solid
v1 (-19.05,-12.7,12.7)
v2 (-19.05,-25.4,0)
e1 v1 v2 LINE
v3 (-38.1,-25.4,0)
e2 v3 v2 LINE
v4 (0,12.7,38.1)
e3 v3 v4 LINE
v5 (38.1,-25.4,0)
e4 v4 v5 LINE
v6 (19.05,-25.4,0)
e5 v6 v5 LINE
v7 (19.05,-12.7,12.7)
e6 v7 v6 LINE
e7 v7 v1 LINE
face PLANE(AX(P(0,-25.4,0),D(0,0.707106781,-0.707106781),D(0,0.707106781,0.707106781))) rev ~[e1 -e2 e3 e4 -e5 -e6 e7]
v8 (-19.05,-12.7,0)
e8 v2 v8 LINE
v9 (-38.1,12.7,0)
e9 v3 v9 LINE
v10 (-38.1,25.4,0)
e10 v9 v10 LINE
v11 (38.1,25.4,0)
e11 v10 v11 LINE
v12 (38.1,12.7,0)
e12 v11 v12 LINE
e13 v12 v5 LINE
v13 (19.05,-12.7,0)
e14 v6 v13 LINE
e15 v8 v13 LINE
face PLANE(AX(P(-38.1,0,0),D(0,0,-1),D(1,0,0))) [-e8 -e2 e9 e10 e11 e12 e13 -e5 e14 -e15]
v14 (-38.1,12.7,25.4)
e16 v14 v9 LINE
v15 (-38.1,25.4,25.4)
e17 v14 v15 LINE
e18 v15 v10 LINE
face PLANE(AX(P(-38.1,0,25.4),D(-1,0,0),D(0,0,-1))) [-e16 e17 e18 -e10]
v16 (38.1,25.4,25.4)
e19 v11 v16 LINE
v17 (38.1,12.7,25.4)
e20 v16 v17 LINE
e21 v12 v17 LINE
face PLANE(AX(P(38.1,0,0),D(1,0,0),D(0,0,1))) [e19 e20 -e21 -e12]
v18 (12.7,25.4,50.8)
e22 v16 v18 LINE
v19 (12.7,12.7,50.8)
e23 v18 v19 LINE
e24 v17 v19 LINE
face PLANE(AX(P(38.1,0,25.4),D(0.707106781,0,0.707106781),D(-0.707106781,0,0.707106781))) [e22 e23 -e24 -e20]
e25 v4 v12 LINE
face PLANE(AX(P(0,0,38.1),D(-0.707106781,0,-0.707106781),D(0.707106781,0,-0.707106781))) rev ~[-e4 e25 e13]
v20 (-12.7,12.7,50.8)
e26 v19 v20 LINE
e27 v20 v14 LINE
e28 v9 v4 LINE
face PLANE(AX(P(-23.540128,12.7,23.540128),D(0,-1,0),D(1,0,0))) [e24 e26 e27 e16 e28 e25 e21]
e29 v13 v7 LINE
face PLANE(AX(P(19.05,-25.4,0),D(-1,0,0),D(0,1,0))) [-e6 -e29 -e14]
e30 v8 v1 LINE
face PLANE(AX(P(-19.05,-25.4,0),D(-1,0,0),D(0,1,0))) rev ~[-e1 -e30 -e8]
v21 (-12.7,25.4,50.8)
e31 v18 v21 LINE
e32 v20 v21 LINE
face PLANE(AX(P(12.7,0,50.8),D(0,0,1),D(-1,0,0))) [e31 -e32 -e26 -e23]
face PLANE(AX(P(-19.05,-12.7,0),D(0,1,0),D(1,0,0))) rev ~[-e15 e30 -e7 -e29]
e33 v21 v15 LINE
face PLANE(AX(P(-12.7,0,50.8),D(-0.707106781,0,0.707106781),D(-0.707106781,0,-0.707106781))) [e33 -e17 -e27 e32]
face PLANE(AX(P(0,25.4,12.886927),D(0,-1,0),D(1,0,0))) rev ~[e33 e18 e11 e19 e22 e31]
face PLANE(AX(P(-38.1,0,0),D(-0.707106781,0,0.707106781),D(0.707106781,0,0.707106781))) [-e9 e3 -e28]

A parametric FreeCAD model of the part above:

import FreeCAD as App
import Part
import Sketcher
from FreeCAD import Vector
Q = App.Units.Quantity

doc = App.newDocument("Part")
body = doc.addObject("PartDesign::Body", "Body")

sketch1 = body.newObject("Sketcher::SketchObject", "Sketch")
sketch1.AttachmentSupport = (doc.getObject("XZ_Plane"), [""])
sketch1.MapMode = "FlatFace"
sketch1.addGeometry([
    Part.LineSegment(Vector(-38.1, 0, 0), Vector(38.1, 0, 0)),
    Part.LineSegment(Vector(38.1, 0, 0), Vector(38.1, 25.4, 0)),
    Part.LineSegment(Vector(38.1, 25.4, 0), Vector(12.7, 50.8, 0)),
    Part.LineSegment(Vector(12.7, 50.8, 0), Vector(-12.7, 50.8, 0)),
    Part.LineSegment(Vector(-12.7, 50.8, 0), Vector(-38.1, 25.4, 0)),
    Part.LineSegment(Vector(-38.1, 25.4, 0), Vector(-38.1, 0, 0)),
], False)
sketch1.addConstraint([
    Sketcher.Constraint("Coincident", 0, 2, 1, 1),
    Sketcher.Constraint("Coincident", 1, 2, 2, 1),
    Sketcher.Constraint("Coincident", 2, 2, 3, 1),
    Sketcher.Constraint("Coincident", 3, 2, 4, 1),
    Sketcher.Constraint("Coincident", 4, 2, 5, 1),
    Sketcher.Constraint("Coincident", 5, 2, 0, 1),
    Sketcher.Constraint("Horizontal", 0),
    Sketcher.Constraint("Vertical", 1),
    Sketcher.Constraint("Horizontal", 3),
    Sketcher.Constraint("Vertical", 5),
    Sketcher.Constraint("Symmetric", 0, 2, 5, 2, -1, 1),
    Sketcher.Constraint("Perpendicular", 2, 4),
    Sketcher.Constraint("Horizontal", 1, 2, 4, 2),
    Sketcher.Constraint("Equal", 3, 1),
    Sketcher.Constraint("Equal", 2, 4),
    Sketcher.Constraint("DistanceX", 0, 1, 0, 2, Q("3 in")),
    Sketcher.Constraint("DistanceX", 3, 2, 3, 1, Q("1 in")),
])
pad1 = body.newObject("PartDesign::Pad", "Pad")
pad1.Profile = sketch1
pad1.Length = Q("2 in")
pad1.Midplane = True

sketch2 = body.newObject("Sketcher::SketchObject", "Sketch001")
sketch2.AttachmentSupport = (doc.getObject("XY_Plane"), [""])
sketch2.MapMode = "FlatFace"
sketch2.addGeometry([
    Part.LineSegment(Vector(-19.05, -12.7, 0), Vector(-19.05, -25.4, 0)),
    Part.LineSegment(Vector(-19.05, -25.4, 0), Vector(19.05, -25.4, 0)),
    Part.LineSegment(Vector(19.05, -25.4, 0), Vector(19.05, -12.7, 0)),
    Part.LineSegment(Vector(19.05, -12.7, 0), Vector(-19.05, -12.7, 0)),
], False)
sketch2.addConstraint([
    Sketcher.Constraint("Coincident", 0, 2, 1, 1),
    Sketcher.Constraint("Coincident", 1, 2, 2, 1),
    Sketcher.Constraint("Coincident", 2, 2, 3, 1),
    Sketcher.Constraint("Coincident", 3, 2, 0, 1),
    Sketcher.Constraint("Vertical", 0),
    Sketcher.Constraint("Horizontal", 1),
    Sketcher.Constraint("Vertical", 2),
    Sketcher.Constraint("Horizontal", 3),
    Sketcher.Constraint("DistanceX", 1, 1, 1, 2, Q("1.5 in")),
    Sketcher.Constraint("DistanceY", 0, 2, 0, 1, Q("0.5 in")),
    Sketcher.Constraint("DistanceY", 0, 2, -1, 1, Q("1 in")),
    Sketcher.Constraint("DistanceX", 0, 2, -1, 1, Q("0.75 in")),
])
pocket1 = body.newObject("PartDesign::Pocket", "Pocket")
pocket1.Profile = sketch2
pocket1.Type = "ThroughAll"
pocket1.Reversed = True

sketch3 = body.newObject("Sketcher::SketchObject", "Sketch002")
sketch3.AttachmentSupport = (doc.getObject("YZ_Plane"), [""])
sketch3.MapMode = "FlatFace"
sketch3.addGeometry([
    Part.LineSegment(Vector(-25.4, 50.8, 0), Vector(-25.4, 0, 0)),
    Part.LineSegment(Vector(-25.4, 0, 0), Vector(12.7, 38.1, 0)),
    Part.LineSegment(Vector(12.7, 38.1, 0), Vector(12.7, 50.8, 0)),
    Part.LineSegment(Vector(12.7, 50.8, 0), Vector(-25.4, 50.8, 0)),
], False)
sketch3.addConstraint([
    Sketcher.Constraint("Coincident", 0, 2, 1, 1),
    Sketcher.Constraint("Coincident", 1, 2, 2, 1),
    Sketcher.Constraint("Coincident", 2, 2, 3, 1),
    Sketcher.Constraint("Coincident", 3, 2, 0, 1),
    Sketcher.Constraint("Vertical", 0),
    Sketcher.Constraint("Vertical", 2),
    Sketcher.Constraint("Horizontal", 3),
    Sketcher.Constraint("PointOnObject", 0, 2, -1),
    Sketcher.Constraint("DistanceY", 0, 2, 0, 1, Q("2 in")),
    Sketcher.Constraint("DistanceX", 3, 2, 3, 1, Q("1.5 in")),
    Sketcher.Constraint("DistanceY", 2, 1, 2, 2, Q("0.5 in")),
    Sketcher.Constraint("DistanceX", 0, 2, -1, 1, Q("1 in")),
])
pocket2 = body.newObject("PartDesign::Pocket", "Pocket001")
pocket2.Profile = sketch3
pocket2.Length = Q("3 in")
pocket2.Midplane = True

sketch4 = body.newObject("Sketcher::SketchObject", "Sketch003")
sketch4.AttachmentSupport = (doc.getObject("XZ_Plane"), [""])
sketch4.MapMode = "FlatFace"
sketch4.addGeometry([
    Part.LineSegment(Vector(-38.1, 0, 0), Vector(0, 38.1, 0)),
    Part.LineSegment(Vector(0, 38.1, 0), Vector(-25.4, 38.1, 0)),
    Part.LineSegment(Vector(-25.4, 38.1, 0), Vector(-38.1, 25.4, 0)),
    Part.LineSegment(Vector(-38.1, 25.4, 0), Vector(-38.1, 0, 0)),
], False)
sketch4.addConstraint([
    Sketcher.Constraint("Coincident", 0, 2, 1, 1),
    Sketcher.Constraint("Coincident", 1, 2, 2, 1),
    Sketcher.Constraint("Coincident", 2, 2, 3, 1),
    Sketcher.Constraint("Coincident", 3, 2, 0, 1),
    Sketcher.Constraint("Horizontal", 1),
    Sketcher.Constraint("Vertical", 3),
    Sketcher.Constraint("PointOnObject", 0, 2, -2),
    Sketcher.Constraint("PointOnObject", 3, 2, -1),
    Sketcher.Constraint("Parallel", 0, 2),
    Sketcher.Constraint("Equal", 1, 3),
    Sketcher.Constraint("DistanceX", 1, 2, 1, 1, Q("1 in")),
    Sketcher.Constraint("DistanceY", -1, 1, 0, 2, Q("1.5 in")),
])
pocket3 = body.newObject("PartDesign::Pocket", "Pocket002")
pocket3.Profile = sketch4
pocket3.Type = "TwoLengths"
pocket3.Length = Q("0.5 in")
pocket3.Length2 = Q("1 in")

sketch5 = body.newObject("Sketcher::SketchObject", "Sketch004")
sketch5.AttachmentSupport = (doc.getObject("XZ_Plane"), [""])
sketch5.MapMode = "FlatFace"
sketch5.addGeometry([
    Part.LineSegment(Vector(0, 38.1, 0), Vector(38.1, 0, 0)),
    Part.LineSegment(Vector(38.1, 0, 0), Vector(38.1, 25.4, 0)),
    Part.LineSegment(Vector(38.1, 25.4, 0), Vector(25.4, 38.1, 0)),
    Part.LineSegment(Vector(25.4, 38.1, 0), Vector(0, 38.1, 0)),
], False)
sketch5.addConstraint([
    Sketcher.Constraint("Coincident", 0, 2, 1, 1),
    Sketcher.Constraint("Coincident", 1, 2, 2, 1),
    Sketcher.Constraint("Coincident", 2, 2, 3, 1),
    Sketcher.Constraint("Coincident", 3, 2, 0, 1),
    Sketcher.Constraint("Vertical", 1),
    Sketcher.Constraint("Horizontal", 3),
    Sketcher.Constraint("PointOnObject", 0, 2, -1),
    Sketcher.Constraint("PointOnObject", 3, 2, -2),
    Sketcher.Constraint("Parallel", 0, 2),
    Sketcher.Constraint("Equal", 3, 1),
    Sketcher.Constraint("DistanceX", 3, 2, 3, 1, Q("1 in")),
    Sketcher.Constraint("DistanceX", -1, 1, 0, 2, Q("1.5 in")),
])
pocket4 = body.newObject("PartDesign::Pocket", "Pocket003")
pocket4.Profile = sketch5
pocket4.Type = "TwoLengths"
pocket4.Length = Q("1 in")
pocket4.Length2 = Q("0.5 in")
pocket4.Reversed = True

doc.recompute()
